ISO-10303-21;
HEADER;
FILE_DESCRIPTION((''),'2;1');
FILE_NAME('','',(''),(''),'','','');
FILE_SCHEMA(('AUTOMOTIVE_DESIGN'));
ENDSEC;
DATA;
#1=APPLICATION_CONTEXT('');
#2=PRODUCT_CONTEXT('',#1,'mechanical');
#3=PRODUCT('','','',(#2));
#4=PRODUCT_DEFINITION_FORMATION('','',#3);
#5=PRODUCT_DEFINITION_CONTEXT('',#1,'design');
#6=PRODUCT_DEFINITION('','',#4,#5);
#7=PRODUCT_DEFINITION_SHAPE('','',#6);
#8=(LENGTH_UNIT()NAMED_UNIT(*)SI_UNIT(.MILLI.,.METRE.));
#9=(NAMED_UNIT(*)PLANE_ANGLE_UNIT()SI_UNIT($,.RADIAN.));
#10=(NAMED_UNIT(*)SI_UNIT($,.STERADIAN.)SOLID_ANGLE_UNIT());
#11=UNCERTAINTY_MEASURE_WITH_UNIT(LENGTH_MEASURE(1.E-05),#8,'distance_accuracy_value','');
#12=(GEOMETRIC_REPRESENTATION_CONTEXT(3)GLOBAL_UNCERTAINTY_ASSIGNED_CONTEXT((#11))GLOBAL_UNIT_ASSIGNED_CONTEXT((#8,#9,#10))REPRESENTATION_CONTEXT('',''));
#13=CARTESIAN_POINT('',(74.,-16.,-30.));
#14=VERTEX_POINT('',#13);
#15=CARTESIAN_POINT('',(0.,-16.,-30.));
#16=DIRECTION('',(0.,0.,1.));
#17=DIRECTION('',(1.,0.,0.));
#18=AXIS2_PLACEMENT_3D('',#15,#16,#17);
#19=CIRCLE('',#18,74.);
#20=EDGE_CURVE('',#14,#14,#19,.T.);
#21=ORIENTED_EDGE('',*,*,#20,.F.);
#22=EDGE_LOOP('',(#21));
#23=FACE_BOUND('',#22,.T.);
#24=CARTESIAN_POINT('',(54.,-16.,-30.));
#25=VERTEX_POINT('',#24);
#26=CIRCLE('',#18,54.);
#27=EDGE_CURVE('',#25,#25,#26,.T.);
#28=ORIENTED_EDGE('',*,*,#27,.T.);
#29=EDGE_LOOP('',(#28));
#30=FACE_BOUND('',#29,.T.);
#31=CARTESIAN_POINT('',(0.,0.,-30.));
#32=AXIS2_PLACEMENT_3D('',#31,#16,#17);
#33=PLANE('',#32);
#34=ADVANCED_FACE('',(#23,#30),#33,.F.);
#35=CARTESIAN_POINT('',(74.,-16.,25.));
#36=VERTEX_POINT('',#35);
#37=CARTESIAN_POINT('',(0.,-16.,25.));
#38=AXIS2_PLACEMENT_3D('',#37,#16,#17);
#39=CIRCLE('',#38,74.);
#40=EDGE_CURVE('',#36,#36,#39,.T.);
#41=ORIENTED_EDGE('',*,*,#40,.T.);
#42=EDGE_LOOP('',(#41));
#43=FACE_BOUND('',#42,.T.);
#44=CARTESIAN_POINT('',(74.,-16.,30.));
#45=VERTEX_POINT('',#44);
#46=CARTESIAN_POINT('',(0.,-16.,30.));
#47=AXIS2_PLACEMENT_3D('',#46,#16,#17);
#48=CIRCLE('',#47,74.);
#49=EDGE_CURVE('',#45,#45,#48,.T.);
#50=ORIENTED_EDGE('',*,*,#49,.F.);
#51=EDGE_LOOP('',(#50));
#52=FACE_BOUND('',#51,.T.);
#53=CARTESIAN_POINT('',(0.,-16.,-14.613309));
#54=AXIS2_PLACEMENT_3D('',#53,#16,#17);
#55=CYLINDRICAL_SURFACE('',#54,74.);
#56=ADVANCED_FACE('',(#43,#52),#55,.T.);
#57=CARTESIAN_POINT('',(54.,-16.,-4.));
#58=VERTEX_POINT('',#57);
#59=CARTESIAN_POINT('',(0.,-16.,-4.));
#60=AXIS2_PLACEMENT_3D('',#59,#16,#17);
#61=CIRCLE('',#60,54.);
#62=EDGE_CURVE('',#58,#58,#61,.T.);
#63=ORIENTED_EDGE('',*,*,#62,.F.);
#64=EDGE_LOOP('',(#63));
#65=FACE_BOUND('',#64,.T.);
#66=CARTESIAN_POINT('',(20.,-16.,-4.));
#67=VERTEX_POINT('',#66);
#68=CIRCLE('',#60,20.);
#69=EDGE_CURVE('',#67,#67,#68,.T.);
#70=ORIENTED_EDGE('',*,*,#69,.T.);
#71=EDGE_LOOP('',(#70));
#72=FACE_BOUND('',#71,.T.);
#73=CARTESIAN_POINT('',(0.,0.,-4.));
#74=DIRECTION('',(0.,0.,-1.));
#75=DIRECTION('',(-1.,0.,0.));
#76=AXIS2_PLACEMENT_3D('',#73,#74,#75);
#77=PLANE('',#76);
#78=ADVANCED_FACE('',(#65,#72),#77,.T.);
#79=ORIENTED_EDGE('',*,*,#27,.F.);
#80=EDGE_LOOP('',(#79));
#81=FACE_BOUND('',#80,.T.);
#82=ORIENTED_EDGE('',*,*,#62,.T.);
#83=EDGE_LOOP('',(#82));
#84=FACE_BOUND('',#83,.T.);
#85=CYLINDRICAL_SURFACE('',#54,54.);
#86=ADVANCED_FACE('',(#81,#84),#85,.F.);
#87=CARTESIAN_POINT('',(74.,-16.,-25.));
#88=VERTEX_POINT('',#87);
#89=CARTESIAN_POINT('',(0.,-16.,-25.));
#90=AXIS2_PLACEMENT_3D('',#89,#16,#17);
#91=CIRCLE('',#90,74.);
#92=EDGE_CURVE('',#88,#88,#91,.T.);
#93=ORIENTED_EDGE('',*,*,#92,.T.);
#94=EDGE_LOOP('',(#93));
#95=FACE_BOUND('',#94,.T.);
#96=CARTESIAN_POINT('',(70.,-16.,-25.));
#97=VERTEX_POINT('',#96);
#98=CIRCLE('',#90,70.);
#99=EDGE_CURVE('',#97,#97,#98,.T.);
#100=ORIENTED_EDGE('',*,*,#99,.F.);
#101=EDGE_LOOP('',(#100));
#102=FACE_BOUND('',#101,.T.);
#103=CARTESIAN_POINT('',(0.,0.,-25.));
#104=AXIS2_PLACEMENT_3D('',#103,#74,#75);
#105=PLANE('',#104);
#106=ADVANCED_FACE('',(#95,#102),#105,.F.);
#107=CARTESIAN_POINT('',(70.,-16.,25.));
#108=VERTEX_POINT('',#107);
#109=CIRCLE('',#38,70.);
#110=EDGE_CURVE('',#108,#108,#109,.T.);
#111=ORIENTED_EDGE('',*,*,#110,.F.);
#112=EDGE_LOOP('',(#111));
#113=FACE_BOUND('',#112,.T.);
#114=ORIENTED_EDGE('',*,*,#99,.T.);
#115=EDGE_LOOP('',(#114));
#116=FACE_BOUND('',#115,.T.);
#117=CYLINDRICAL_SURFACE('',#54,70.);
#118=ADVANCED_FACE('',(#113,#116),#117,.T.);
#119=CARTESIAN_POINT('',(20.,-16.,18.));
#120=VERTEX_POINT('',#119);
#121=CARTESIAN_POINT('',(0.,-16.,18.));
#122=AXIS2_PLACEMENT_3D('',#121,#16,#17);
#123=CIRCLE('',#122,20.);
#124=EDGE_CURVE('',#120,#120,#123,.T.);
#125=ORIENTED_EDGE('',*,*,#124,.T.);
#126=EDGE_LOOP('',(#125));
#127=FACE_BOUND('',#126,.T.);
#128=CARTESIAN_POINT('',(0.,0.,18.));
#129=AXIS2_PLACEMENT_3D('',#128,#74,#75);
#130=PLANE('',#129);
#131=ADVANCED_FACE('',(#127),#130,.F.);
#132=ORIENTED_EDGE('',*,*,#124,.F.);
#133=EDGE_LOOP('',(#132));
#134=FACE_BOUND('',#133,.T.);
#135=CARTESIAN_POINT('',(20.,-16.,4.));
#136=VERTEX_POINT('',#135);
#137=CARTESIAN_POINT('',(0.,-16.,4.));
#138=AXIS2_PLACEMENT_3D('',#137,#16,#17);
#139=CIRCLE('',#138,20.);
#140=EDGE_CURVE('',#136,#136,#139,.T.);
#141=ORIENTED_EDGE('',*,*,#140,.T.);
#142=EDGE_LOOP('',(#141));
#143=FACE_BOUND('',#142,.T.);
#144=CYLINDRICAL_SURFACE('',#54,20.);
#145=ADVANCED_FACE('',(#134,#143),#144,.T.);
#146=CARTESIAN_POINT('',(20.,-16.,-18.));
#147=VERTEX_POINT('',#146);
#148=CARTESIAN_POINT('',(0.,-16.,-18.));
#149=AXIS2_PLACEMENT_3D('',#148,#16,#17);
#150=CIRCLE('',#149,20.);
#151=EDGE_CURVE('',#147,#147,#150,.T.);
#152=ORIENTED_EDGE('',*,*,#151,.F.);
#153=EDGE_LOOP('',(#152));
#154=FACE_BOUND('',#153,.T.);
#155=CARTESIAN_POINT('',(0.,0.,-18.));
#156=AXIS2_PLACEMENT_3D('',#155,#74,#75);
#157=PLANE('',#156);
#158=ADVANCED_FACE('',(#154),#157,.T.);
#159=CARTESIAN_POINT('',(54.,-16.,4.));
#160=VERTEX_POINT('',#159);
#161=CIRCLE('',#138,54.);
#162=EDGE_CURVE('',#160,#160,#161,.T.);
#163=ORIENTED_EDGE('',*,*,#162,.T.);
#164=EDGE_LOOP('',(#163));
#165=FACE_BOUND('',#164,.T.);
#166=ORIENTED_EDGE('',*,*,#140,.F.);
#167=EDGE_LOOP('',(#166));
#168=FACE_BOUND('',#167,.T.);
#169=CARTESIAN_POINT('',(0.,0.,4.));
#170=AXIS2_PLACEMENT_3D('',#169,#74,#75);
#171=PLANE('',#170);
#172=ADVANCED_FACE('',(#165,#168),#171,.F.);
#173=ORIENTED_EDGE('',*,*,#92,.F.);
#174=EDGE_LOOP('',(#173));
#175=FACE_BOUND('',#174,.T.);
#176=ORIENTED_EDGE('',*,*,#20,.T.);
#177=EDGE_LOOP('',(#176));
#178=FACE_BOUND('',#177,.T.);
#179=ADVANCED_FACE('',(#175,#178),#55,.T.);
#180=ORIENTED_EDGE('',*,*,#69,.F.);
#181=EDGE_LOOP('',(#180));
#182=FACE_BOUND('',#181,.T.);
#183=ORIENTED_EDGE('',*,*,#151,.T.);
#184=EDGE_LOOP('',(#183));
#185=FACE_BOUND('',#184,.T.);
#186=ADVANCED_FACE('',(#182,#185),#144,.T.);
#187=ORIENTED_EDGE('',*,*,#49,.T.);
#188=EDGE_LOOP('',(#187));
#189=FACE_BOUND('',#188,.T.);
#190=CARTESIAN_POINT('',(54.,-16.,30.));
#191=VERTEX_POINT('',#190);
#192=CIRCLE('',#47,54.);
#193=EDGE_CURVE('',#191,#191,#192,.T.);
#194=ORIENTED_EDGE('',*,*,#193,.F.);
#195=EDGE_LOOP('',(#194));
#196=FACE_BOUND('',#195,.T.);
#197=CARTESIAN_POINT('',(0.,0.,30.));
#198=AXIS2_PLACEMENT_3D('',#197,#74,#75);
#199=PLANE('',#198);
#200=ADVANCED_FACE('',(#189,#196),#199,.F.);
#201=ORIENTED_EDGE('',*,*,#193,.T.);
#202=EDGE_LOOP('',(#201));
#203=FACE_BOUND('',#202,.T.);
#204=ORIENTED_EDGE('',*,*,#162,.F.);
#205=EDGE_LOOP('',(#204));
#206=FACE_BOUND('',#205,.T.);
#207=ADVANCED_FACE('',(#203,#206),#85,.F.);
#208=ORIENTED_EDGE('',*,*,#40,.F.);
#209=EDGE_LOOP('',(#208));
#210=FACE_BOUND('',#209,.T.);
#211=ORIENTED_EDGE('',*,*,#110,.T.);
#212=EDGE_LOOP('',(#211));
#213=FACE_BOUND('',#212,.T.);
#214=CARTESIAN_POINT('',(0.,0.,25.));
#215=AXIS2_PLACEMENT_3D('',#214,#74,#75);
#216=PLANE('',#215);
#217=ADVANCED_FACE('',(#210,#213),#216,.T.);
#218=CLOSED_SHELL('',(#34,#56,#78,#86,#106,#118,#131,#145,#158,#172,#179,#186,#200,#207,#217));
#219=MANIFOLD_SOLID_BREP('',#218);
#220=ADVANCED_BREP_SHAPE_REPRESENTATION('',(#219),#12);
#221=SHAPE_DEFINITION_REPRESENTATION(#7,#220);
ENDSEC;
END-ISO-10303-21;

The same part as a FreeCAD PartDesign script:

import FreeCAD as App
import Part
import Sketcher
from FreeCAD import Vector

doc = App.newDocument("Part")
body = doc.addObject("PartDesign::Body", "Body")

sketch1 = body.newObject("Sketcher::SketchObject", "Sketch")
sketch1.AttachmentSupport = (doc.getObject("YZ_Plane"), [""])
sketch1.MapMode = "FlatFace"
sketch1.addGeometry([
    Part.LineSegment(Vector(-90, 30, 0), Vector(-90, 25, 0)),
    Part.LineSegment(Vector(-90, 25, 0), Vector(-86, 25, 0)),
    Part.LineSegment(Vector(-86, 25, 0), Vector(-86, -25, 0)),
    Part.LineSegment(Vector(-86, -25, 0), Vector(-90, -25, 0)),
    Part.LineSegment(Vector(-90, -25, 0), Vector(-90, -30, 0)),
    Part.LineSegment(Vector(-90, -30, 0), Vector(-70, -30, 0)),
    Part.LineSegment(Vector(-70, -30, 0), Vector(-70, -4, 0)),
    Part.LineSegment(Vector(-70, -4, 0), Vector(-36, -4, 0)),
    Part.LineSegment(Vector(-36, -4, 0), Vector(-36, -18, 0)),
    Part.LineSegment(Vector(-36, -18, 0), Vector(-16, -18, 0)),
    Part.LineSegment(Vector(-16, -18, 0), Vector(-16, 18, 0)),
    Part.LineSegment(Vector(-16, 18, 0), Vector(-36, 18, 0)),
    Part.LineSegment(Vector(-36, 18, 0), Vector(-36, 4, 0)),
    Part.LineSegment(Vector(-36, 4, 0), Vector(-70, 4, 0)),
    Part.LineSegment(Vector(-70, 4, 0), Vector(-70, 30, 0)),
    Part.LineSegment(Vector(-70, 30, 0), Vector(-90, 30, 0)),
], False)
sketch1.addGeometry(Part.LineSegment(Vector(-16, 30, 0), Vector(-16, -30, 0)), True)
sketch1.addConstraint([
    Sketcher.Constraint("Coincident", 0, 2, 1, 1),
    Sketcher.Constraint("Coincident", 1, 2, 2, 1),
    Sketcher.Constraint("Coincident", 2, 2, 3, 1),
    Sketcher.Constraint("Coincident", 3, 2, 4, 1),
    Sketcher.Constraint("Coincident", 4, 2, 5, 1),
    Sketcher.Constraint("Coincident", 5, 2, 6, 1),
    Sketcher.Constraint("Coincident", 6, 2, 7, 1),
    Sketcher.Constraint("Coincident", 7, 2, 8, 1),
    Sketcher.Constraint("Coincident", 8, 2, 9, 1),
    Sketcher.Constraint("Coincident", 9, 2, 10, 1),
    Sketcher.Constraint("Coincident", 10, 2, 11, 1),
    Sketcher.Constraint("Coincident", 11, 2, 12, 1),
    Sketcher.Constraint("Coincident", 12, 2, 13, 1),
    Sketcher.Constraint("Coincident", 13, 2, 14, 1),
    Sketcher.Constraint("Coincident", 14, 2, 15, 1),
    Sketcher.Constraint("Coincident", 15, 2, 0, 1),
    Sketcher.Constraint("Vertical", 0),
    Sketcher.Constraint("Horizontal", 1),
    Sketcher.Constraint("Vertical", 2),
    Sketcher.Constraint("Horizontal", 3),
    Sketcher.Constraint("Vertical", 4),
    Sketcher.Constraint("Horizontal", 5),
    Sketcher.Constraint("Vertical", 6),
    Sketcher.Constraint("Horizontal", 7),
    Sketcher.Constraint("Vertical", 8),
    Sketcher.Constraint("Horizontal", 9),
    Sketcher.Constraint("Vertical", 10),
    Sketcher.Constraint("Horizontal", 11),
    Sketcher.Constraint("Vertical", 12),
    Sketcher.Constraint("Horizontal", 13),
    Sketcher.Constraint("Vertical", 14),
    Sketcher.Constraint("Horizontal", 15),
    Sketcher.Constraint("Vertical", 16),
    Sketcher.Constraint("Symmetric", 0, 2, 3, 2, -1),
    Sketcher.Constraint("Symmetric", 8, 2, 11, 2, -1),
    Sketcher.Constraint("Symmetric", 6, 2, 13, 2, -1),
    Sketcher.Constraint("Horizontal", 15, 2, 16, 1),
    Sketcher.Constraint("Horizontal", 5, 2, 16, 2),
    Sketcher.Constraint("Vertical", 10, 2, 16, 1),
    Sketcher.Constraint("Equal", 5, 9),
    Sketcher.Constraint("Equal", 0, 4),
    Sketcher.Constraint("DistanceX", 1, 1, 1, 2, 4.0),
    Sketcher.Constraint("DistanceX", 5, 1, 5, 2, 20.0),
    Sketcher.Constraint("DistanceX", 7, 1, 7, 2, 34.0),
    Sketcher.Constraint("DistanceY", 0, 2, 0, 1, 5.0),
    Sketcher.Constraint("DistanceY", 2, 2, 2, 1, 50.0),
    Sketcher.Constraint("DistanceY", 6, 1, 6, 2, 26.0),
    Sketcher.Constraint("DistanceY", 8, 2, 8, 1, 14.0),
    Sketcher.Constraint("DistanceX", 0, 2, -1, 1, 90.0),
])
revolution = body.newObject("PartDesign::Revolution", "Revolution")
revolution.Profile = sketch1
revolution.ReferenceAxis = (sketch1, ["Axis0"])
revolution.Angle = 360

doc.recompute()
